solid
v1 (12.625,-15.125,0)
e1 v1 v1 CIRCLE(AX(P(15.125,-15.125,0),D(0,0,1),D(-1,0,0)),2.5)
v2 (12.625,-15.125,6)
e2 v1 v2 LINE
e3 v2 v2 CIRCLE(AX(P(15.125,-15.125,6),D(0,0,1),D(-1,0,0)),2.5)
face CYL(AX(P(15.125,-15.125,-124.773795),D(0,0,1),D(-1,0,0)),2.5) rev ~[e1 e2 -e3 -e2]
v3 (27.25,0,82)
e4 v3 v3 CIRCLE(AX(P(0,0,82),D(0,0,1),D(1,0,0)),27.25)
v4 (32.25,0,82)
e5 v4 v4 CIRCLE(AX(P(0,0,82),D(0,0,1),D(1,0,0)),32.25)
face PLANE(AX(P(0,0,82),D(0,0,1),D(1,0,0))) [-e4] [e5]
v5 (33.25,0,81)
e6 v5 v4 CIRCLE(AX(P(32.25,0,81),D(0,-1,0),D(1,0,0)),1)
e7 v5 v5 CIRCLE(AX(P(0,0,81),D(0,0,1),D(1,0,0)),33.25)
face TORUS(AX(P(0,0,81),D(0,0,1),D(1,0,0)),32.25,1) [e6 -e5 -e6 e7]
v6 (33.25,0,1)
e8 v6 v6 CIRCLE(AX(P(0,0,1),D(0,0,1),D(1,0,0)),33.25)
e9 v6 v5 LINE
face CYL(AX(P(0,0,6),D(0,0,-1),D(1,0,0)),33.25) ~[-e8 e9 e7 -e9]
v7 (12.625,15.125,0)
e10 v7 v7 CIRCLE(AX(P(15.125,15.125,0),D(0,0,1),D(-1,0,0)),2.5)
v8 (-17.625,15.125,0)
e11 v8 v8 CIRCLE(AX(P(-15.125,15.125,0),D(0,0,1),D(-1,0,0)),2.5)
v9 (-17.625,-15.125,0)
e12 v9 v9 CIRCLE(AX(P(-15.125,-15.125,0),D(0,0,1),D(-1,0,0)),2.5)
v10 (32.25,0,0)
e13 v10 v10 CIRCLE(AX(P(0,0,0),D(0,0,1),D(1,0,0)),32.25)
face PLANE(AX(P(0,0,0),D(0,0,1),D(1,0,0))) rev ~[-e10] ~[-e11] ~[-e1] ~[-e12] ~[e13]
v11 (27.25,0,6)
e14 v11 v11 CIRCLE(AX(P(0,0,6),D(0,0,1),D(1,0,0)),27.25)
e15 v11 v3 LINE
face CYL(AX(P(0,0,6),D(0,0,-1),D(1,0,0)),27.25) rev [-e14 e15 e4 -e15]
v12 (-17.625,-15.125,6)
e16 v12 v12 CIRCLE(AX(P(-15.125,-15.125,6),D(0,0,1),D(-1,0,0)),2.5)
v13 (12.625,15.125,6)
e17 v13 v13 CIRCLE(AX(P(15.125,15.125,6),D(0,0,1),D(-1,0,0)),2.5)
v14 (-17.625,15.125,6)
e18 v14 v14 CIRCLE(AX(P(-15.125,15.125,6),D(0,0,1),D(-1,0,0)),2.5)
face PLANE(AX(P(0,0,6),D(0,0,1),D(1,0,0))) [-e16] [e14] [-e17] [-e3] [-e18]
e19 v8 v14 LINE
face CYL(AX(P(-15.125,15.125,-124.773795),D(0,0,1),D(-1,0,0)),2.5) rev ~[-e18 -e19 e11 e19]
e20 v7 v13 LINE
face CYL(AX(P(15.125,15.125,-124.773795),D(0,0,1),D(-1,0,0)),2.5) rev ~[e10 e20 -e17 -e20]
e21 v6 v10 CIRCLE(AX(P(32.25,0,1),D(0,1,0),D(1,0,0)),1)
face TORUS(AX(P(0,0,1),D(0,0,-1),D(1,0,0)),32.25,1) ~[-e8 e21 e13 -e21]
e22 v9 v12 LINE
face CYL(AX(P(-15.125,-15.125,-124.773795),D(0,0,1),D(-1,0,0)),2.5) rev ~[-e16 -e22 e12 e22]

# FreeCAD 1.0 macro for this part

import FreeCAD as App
import Part
import Sketcher


def edges_at(feature, points):
    """Names of the edges that pass closest to the given points."""
    edges = feature.Shape.Edges
    near = lambda p: min(range(len(edges)), key=lambda i: edges[i].distToShape(Part.Vertex(*p))[0])
    return sorted({f"Edge{near(p) + 1}" for p in points})

doc = App.newDocument("Part")
params = doc.addObject("Spreadsheet::Sheet", "Params")
for row, (alias, value) in enumerate([
    ("sketch1_diameter", "66.5 mm"),
    ("pad1_length", "6 mm"),
    ("sketch2_diameter", "66.5 mm"),
    ("sketch2_diameter2", "54.5 mm"),
    ("pad2_length", "76 mm"),
    ("sketch3_diameter", "5 mm"),
    ("hole_diameter", "5 mm"),
    ("fillet_radius", "1 mm"),
], start=1):
    params.set(f"A{row}", alias)
    params.set(f"B{row}", "=" + value)
    params.setAlias(f"B{row}", alias)

body = doc.addObject("PartDesign::Body", "Body")

# Sketch on XY plane
sketch1 = body.newObject("Sketcher::SketchObject", "Sketch")
sketch1.AttachmentSupport = (doc.getObject("XY_Plane"), [""])
sketch1.MapMode = "FlatFace"
sketch1.addGeometry(Part.Circle(App.Vector(0, 0, 0), App.Vector(0, 0, 1), 33), False)
sketch1.addConstraint([
    Sketcher.Constraint("Coincident", 0, 3, -1, 1),
    Sketcher.Constraint("Diameter", 0, 66.5),
])
sketch1.setExpression("Constraints[1]", "Params.sketch1_diameter")
pad1 = body.newObject("PartDesign::Pad", "Pad")
pad1.Profile = sketch1
pad1.setExpression("Length", "Params.pad1_length")

# Sketch on XY plane
sketch2 = body.newObject("Sketcher::SketchObject", "Sketch001")
sketch2.AttachmentSupport = (doc.getObject("XY_Plane"), [""])
sketch2.MapMode = "FlatFace"
sketch2.AttachmentOffset = App.Placement(App.Vector(0, 0, 6), App.Rotation())
sketch2.addGeometry([
    Part.Circle(App.Vector(0, 0, 0), App.Vector(0, 0, 1), 33),
    Part.Circle(App.Vector(0, 0, 0), App.Vector(0, 0, 1), 27),
], False)
sketch2.addConstraint([
    Sketcher.Constraint("Coincident", 0, 3, -1, 1),
    Sketcher.Constraint("Coincident", 1, 3, -1, 1),
    Sketcher.Constraint("Diameter", 0, 66.5),
    Sketcher.Constraint("Diameter", 1, 54.5),
])
sketch2.setExpression("Constraints[2]", "Params.sketch2_diameter")
sketch2.setExpression("Constraints[3]", "Params.sketch2_diameter2")
pad2 = body.newObject("PartDesign::Pad", "Pad001")
pad2.Profile = sketch2
pad2.setExpression("Length", "Params.pad2_length")

# Sketch on XY plane
sketch3 = body.newObject("Sketcher::SketchObject", "Sketch002")
sketch3.AttachmentSupport = (doc.getObject("XY_Plane"), [""])
sketch3.MapMode = "FlatFace"
sketch3.addGeometry([
    Part.Circle(App.Vector(-15.1, 15.1, 0), App.Vector(0, 0, 1), 2.5),
    Part.Circle(App.Vector(15.1, 15.1, 0), App.Vector(0, 0, 1), 2.5),
    Part.Circle(App.Vector(15.1, -15.1, 0), App.Vector(0, 0, 1), 2.5),
    Part.Circle(App.Vector(-15.1, -15.1, 0), App.Vector(0, 0, 1), 2.5),
], False)
sketch3.addConstraint([
    Sketcher.Constraint("Equal", 0, 1),
    Sketcher.Constraint("Equal", 1, 2),
    Sketcher.Constraint("Equal", 2, 3),
    Sketcher.Constraint("Symmetric", 0, 3, 2, 3, -1, 1),
    Sketcher.Constraint("Symmetric", 1, 3, 3, 3, -1, 1),
    Sketcher.Constraint("Symmetric", 0, 3, 1, 3, -2),
    Sketcher.Constraint("Diameter", 0, 5.0),
    Sketcher.Constraint("DistanceX", 0, 3, 1, 3, 30.25),
    Sketcher.Constraint("DistanceY", 2, 3, 1, 3, 30.25),
])
sketch3.setExpression("Constraints[6]", "Params.sketch3_diameter")
doc.recompute()
hole = body.newObject("PartDesign::Hole", "Hole")
hole.Profile = sketch3
hole.ThreadType = "None"
hole.setExpression("Diameter", "Params.hole_diameter")
hole.DepthType = "ThroughAll"
hole.Reversed = True
doc.recompute()

fillet = body.newObject("PartDesign::Fillet", "Fillet")
fillet.Base = (hole, edges_at(hole, [(-33.25, 0, 0), (-33.25, 0, 82)]))
fillet.setExpression("Radius", "Params.fillet_radius")

doc.recompute()
